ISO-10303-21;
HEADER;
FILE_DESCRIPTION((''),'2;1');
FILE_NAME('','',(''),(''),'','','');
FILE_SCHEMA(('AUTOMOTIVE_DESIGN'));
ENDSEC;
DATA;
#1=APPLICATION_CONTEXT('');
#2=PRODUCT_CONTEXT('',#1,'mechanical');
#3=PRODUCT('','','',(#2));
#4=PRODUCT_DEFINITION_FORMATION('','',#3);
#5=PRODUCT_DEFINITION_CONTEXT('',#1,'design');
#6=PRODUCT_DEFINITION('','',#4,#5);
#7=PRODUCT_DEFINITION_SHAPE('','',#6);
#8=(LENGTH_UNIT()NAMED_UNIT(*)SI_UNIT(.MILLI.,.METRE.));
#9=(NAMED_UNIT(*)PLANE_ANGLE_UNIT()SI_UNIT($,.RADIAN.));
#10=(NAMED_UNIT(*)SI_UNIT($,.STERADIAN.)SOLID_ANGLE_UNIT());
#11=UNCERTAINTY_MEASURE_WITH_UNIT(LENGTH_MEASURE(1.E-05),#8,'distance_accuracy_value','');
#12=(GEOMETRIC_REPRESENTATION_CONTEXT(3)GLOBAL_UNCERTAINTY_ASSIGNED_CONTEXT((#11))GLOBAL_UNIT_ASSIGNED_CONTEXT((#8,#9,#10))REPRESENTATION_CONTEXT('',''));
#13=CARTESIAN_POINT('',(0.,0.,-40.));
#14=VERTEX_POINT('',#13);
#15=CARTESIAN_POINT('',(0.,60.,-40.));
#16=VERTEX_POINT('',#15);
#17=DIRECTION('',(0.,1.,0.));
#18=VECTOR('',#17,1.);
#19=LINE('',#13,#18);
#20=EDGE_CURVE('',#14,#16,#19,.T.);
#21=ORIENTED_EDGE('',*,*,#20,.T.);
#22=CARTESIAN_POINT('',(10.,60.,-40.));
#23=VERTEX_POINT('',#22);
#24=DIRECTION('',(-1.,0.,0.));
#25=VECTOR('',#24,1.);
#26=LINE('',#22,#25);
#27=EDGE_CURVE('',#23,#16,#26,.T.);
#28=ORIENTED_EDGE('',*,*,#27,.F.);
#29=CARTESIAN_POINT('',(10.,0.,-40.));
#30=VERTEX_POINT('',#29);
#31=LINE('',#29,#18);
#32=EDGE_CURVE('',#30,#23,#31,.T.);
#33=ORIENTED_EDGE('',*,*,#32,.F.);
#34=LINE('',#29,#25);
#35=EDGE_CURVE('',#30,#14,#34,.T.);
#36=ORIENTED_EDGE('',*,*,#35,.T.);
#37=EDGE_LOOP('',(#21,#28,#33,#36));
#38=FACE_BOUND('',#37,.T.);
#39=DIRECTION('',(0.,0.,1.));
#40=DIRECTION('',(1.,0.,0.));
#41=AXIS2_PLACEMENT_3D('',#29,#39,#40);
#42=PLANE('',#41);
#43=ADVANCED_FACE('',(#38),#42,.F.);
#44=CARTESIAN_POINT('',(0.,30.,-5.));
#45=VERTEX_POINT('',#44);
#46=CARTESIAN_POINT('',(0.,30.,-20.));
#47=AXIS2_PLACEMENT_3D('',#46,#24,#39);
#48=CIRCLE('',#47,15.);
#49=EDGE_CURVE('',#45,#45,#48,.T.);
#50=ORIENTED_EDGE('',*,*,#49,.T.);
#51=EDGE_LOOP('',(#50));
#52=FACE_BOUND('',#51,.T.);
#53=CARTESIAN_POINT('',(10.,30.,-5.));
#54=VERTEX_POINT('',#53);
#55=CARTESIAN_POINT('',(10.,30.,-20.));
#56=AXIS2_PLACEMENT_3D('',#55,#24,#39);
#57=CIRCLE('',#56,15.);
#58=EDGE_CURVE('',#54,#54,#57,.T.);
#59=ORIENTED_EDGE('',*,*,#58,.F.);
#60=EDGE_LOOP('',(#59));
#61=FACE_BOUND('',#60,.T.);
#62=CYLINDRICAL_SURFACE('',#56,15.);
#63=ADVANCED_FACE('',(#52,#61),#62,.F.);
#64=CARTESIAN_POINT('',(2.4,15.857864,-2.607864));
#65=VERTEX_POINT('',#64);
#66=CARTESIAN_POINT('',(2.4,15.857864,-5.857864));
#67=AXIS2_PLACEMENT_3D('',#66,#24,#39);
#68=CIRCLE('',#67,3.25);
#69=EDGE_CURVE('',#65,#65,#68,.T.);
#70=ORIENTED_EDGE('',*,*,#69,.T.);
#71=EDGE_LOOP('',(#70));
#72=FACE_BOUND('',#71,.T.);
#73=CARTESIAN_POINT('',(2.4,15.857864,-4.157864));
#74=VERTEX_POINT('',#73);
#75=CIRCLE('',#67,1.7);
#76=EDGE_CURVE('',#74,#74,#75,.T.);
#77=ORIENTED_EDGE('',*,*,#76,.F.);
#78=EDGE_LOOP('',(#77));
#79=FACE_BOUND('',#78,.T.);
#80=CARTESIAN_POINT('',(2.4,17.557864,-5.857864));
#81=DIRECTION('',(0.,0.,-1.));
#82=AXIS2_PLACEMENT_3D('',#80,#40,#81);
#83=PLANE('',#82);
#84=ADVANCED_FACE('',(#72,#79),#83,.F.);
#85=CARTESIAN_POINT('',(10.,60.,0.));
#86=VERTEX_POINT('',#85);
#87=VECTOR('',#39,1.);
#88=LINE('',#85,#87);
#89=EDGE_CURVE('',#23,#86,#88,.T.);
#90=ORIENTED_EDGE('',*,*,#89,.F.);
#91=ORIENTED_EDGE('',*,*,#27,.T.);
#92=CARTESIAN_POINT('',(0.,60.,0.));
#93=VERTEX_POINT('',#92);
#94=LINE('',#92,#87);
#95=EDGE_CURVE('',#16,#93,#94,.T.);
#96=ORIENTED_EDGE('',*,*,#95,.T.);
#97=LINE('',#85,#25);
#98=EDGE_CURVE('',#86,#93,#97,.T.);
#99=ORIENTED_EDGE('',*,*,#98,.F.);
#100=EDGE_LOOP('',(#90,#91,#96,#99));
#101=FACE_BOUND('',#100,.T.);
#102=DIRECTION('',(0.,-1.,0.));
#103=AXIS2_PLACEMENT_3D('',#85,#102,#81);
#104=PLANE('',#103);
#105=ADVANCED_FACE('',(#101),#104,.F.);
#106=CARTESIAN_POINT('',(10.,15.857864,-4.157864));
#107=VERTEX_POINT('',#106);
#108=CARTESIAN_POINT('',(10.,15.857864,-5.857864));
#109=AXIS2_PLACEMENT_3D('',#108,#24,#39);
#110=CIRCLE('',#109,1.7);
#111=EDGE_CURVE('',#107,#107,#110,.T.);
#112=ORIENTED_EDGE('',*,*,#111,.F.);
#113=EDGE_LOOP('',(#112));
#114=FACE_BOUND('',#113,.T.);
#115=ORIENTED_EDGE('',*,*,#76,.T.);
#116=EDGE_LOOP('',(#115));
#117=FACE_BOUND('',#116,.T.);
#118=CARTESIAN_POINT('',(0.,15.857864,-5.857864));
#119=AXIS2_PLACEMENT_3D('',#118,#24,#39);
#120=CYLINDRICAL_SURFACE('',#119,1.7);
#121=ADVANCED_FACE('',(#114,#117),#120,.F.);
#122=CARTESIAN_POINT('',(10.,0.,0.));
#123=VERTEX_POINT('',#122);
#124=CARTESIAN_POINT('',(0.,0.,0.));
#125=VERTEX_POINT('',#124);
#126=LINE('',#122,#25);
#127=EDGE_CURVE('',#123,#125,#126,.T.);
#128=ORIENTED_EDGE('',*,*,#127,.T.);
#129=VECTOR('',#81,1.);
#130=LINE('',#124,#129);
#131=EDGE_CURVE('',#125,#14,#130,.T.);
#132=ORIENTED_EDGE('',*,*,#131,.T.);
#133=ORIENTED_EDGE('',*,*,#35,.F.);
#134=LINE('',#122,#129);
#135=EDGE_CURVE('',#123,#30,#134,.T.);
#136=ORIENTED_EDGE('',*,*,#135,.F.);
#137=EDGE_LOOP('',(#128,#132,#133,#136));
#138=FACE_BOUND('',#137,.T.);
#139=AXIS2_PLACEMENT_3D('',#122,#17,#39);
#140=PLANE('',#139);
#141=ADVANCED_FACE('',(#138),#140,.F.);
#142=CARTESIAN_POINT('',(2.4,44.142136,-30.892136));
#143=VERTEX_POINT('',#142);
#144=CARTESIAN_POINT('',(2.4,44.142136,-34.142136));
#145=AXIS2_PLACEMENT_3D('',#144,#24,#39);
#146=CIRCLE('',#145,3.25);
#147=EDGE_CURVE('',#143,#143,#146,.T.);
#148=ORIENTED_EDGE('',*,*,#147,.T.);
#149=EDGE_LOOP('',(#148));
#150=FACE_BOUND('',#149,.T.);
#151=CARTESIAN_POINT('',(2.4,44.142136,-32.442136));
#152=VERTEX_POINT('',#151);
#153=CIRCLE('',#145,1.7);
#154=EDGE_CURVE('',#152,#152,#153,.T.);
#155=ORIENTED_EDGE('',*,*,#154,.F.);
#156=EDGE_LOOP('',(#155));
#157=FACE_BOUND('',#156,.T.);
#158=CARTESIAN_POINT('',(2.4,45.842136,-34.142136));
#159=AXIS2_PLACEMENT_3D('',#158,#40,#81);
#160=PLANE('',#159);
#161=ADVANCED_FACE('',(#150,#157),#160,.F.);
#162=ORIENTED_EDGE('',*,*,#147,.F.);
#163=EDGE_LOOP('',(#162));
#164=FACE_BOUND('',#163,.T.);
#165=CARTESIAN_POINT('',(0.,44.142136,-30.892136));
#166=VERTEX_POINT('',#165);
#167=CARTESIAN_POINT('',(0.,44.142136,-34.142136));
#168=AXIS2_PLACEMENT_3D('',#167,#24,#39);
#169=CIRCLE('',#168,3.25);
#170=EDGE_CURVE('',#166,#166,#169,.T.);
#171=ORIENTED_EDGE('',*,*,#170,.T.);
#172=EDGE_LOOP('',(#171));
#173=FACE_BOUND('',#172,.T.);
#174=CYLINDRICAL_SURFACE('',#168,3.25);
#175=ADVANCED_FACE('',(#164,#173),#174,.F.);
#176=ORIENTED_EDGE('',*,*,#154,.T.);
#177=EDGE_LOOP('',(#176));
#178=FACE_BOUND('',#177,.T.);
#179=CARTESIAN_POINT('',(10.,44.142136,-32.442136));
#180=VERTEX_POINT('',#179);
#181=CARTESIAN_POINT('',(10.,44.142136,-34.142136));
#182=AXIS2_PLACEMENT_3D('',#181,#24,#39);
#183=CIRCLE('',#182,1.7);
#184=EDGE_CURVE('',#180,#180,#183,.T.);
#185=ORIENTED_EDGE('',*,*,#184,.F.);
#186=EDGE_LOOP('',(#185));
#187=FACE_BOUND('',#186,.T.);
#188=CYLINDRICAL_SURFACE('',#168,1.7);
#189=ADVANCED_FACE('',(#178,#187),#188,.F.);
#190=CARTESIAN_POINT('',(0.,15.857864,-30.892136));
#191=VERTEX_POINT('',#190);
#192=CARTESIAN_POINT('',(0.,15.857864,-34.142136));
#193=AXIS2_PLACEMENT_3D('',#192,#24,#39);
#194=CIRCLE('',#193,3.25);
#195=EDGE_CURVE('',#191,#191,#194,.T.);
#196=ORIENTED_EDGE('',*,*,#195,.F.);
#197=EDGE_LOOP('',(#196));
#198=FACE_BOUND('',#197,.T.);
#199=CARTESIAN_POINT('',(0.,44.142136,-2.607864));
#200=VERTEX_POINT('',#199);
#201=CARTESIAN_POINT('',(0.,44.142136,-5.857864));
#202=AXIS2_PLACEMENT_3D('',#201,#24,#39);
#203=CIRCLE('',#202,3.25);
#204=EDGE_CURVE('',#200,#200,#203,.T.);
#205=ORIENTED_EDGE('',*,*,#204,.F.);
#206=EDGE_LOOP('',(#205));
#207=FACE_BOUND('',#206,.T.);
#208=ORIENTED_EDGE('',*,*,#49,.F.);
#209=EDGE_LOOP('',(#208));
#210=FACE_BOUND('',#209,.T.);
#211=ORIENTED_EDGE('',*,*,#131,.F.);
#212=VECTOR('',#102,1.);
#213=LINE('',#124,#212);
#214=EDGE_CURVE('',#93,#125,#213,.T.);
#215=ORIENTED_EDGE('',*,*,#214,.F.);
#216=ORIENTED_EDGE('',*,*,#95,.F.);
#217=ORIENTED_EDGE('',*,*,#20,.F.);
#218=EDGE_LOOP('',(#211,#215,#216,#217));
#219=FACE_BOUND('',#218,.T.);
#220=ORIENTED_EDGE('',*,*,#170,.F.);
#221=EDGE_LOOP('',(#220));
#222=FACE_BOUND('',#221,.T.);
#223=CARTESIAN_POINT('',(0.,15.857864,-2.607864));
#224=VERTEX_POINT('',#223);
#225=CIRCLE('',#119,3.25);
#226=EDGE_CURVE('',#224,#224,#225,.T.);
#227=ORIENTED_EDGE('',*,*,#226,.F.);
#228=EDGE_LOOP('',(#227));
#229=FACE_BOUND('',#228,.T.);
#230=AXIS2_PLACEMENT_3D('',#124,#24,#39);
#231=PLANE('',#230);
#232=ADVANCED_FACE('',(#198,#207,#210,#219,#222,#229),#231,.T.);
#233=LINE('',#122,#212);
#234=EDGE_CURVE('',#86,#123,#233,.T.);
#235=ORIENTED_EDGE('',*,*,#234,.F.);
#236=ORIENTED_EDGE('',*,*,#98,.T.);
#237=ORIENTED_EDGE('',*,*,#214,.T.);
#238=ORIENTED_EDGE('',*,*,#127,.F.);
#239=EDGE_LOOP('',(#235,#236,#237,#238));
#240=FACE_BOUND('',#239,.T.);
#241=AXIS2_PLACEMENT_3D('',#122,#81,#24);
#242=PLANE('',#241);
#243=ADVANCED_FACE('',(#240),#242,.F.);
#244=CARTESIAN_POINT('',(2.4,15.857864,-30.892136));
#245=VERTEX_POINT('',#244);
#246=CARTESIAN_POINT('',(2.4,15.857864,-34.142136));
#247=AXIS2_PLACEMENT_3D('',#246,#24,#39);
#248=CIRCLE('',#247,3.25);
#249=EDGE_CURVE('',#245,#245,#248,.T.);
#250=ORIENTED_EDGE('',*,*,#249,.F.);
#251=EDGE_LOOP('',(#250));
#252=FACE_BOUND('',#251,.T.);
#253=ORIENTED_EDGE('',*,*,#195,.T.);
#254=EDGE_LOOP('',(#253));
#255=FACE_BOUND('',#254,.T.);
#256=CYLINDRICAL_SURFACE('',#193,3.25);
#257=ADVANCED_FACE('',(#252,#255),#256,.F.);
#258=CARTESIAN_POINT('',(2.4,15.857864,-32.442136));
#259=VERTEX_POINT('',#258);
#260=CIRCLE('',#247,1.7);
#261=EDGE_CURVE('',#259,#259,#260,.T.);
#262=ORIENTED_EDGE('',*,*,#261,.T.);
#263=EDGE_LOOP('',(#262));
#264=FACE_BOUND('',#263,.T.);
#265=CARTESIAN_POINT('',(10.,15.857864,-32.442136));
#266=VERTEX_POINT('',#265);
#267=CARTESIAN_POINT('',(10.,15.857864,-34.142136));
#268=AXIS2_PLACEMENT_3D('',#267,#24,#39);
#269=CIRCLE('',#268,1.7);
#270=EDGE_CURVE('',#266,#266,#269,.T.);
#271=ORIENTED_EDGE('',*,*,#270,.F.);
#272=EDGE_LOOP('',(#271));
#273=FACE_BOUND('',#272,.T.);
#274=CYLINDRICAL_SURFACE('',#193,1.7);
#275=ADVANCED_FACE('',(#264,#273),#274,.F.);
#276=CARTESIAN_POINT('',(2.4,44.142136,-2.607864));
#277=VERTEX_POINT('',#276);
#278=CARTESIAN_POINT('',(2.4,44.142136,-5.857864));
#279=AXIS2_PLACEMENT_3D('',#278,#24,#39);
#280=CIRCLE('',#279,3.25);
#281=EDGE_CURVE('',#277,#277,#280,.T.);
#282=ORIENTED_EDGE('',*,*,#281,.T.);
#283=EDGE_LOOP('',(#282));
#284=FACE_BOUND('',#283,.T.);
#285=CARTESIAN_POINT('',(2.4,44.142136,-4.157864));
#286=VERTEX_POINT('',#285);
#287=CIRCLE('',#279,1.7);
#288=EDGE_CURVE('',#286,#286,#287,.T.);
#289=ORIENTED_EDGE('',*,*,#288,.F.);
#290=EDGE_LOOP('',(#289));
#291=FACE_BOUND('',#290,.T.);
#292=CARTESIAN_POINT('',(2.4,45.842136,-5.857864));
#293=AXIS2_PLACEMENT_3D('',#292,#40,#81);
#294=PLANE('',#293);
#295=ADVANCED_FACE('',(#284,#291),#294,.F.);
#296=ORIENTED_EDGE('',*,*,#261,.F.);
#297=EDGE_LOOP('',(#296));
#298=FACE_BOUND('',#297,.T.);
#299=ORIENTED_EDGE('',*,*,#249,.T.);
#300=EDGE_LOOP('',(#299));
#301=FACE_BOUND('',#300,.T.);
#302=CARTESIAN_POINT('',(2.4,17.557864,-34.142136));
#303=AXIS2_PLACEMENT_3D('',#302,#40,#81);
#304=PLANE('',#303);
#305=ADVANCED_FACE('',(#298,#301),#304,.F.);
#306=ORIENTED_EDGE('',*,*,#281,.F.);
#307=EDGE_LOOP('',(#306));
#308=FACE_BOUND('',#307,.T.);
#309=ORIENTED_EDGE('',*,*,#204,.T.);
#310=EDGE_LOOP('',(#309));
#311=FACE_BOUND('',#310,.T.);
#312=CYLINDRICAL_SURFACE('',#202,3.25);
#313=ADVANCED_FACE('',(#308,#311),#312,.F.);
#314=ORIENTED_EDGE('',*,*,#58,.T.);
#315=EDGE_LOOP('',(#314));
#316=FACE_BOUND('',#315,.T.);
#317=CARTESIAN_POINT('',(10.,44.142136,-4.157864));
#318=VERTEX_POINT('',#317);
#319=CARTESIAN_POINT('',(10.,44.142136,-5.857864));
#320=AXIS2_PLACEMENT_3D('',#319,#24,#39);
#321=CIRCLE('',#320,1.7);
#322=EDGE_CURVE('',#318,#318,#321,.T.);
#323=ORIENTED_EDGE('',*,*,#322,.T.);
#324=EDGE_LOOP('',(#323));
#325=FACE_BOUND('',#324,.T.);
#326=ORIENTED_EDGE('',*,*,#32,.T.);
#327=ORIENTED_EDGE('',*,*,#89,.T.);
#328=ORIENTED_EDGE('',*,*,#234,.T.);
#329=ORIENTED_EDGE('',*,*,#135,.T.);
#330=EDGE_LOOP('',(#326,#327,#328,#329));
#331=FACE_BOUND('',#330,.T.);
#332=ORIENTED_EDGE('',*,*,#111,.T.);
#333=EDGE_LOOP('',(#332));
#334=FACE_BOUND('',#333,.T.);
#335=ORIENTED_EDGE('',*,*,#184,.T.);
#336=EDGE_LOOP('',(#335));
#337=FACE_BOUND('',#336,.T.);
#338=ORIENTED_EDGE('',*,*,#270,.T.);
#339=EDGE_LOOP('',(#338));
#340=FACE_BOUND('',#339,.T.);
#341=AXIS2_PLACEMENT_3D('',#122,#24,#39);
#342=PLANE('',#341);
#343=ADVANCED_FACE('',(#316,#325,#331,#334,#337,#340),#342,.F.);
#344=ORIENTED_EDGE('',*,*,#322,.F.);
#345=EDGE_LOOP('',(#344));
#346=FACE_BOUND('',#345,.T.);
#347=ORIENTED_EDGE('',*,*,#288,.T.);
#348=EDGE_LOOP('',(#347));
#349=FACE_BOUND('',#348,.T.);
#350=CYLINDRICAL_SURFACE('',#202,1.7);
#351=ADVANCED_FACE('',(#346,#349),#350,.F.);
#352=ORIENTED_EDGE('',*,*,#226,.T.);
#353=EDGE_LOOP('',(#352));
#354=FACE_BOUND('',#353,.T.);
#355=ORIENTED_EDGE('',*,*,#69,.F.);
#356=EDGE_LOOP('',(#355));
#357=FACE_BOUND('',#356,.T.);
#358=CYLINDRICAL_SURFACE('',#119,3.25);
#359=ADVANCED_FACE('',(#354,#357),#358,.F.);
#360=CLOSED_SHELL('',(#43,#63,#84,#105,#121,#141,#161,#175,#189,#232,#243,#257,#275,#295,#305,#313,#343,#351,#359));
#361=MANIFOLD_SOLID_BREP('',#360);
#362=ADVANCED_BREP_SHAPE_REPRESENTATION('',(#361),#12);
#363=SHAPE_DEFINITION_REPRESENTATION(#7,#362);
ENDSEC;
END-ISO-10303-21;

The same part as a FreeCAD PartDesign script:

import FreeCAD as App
import Part
import Sketcher
from FreeCAD import Vector


def add_polygon(sketch, points):
    """Adds a closed chain of lines whose ends are joined by coincident constraints."""
    first, n = sketch.GeometryCount, len(points)
    for a, b in zip(points, points[1:] + points[:1]):
        sketch.addGeometry(Part.LineSegment(App.Vector(*a, 0), App.Vector(*b, 0)), False)
    for i in range(n):
        sketch.addConstraint(Sketcher.Constraint("Coincident", first + i, 2, first + (i + 1) % n, 1))

doc = App.newDocument("Part")
params = doc.addObject("Spreadsheet::Sheet", "Params")
for row, (alias, value) in enumerate([
    ("sketch1_width", "60 mm"),
    ("sketch1_height", "40 mm"),
    ("pad1_length", "10 mm"),
    ("sketch2_diameter", "3.4 mm"),
    ("hole_diameter", "3.4 mm"),
    ("hole_cbore_diameter", "6.5 mm"),
    ("hole_cbore_depth", "2.4 mm"),
    ("sketch3_diameter", "30 mm"),
], start=1):
    params.set(f"A{row}", alias)
    params.set(f"B{row}", "=" + value)
    params.setAlias(f"B{row}", alias)

body = doc.addObject("PartDesign::Body", "Body")

# Sketch on YZ plane
sketch1 = doc.addObject("Sketcher::SketchObject", "Sketch")
body.addObject(sketch1)
sketch1.AttachmentSupport = (doc.YZ_Plane, [""])
sketch1.MapMode = "FlatFace"
add_polygon(sketch1, [(60, 0), (0, 0), (0, -40), (60, -40)])  # lines 0-3
sketch1.addConstraint([
    Sketcher.Constraint("Horizontal", 0),
    Sketcher.Constraint("Vertical", 1),
    Sketcher.Constraint("Horizontal", 2),
    Sketcher.Constraint("Vertical", 3),
    Sketcher.Constraint("Coincident", 0, 2, -1, 1),
    Sketcher.Constraint("DistanceX", 0, 2, 0, 1, 60.0),
    Sketcher.Constraint("DistanceY", 1, 2, 1, 1, 40.0),
])
sketch1.setExpression("Constraints[9]", "Params.sketch1_width")
sketch1.setExpression("Constraints[10]", "Params.sketch1_height")
pad1 = doc.addObject("PartDesign::Pad", "Pad")
body.addObject(pad1)
pad1.Profile = sketch1
pad1.setExpression("Length", "Params.pad1_length")

# Sketch on YZ plane
sketch2 = doc.addObject("Sketcher::SketchObject", "Sketch001")
body.addObject(sketch2)
sketch2.AttachmentSupport = (doc.YZ_Plane, [""])
sketch2.MapMode = "FlatFace"
sketch2.addGeometry([
    Part.Circle(Vector(15.857864, -5.857864, 0), Vector(0, 0, 1), 1.7),
    Part.Circle(Vector(44.142136, -5.857864, 0), Vector(0, 0, 1), 1.7),
    Part.Circle(Vector(44.142136, -34.142136, 0), Vector(0, 0, 1), 1.7),
    Part.Circle(Vector(15.857864, -34.142136, 0), Vector(0, 0, 1), 1.7),
], False)
sketch2.addConstraint([
    Sketcher.Constraint("Equal", 0, 1),
    Sketcher.Constraint("Equal", 1, 2),
    Sketcher.Constraint("Equal", 2, 3),
    Sketcher.Constraint("Horizontal", 0, 3, 1, 3),
    Sketcher.Constraint("Horizontal", 2, 3, 3, 3),
    Sketcher.Constraint("Vertical", 1, 3, 2, 3),
    Sketcher.Constraint("Vertical", 0, 3, 3, 3),
    Sketcher.Constraint("Diameter", 0, 3.4),
    Sketcher.Constraint("DistanceX", 0, 3, 1, 3, 28.284271),
    Sketcher.Constraint("DistanceY", 2, 3, 1, 3, 28.284271),
    Sketcher.Constraint("DistanceX", -1, 1, 0, 3, 15.857864),
    Sketcher.Constraint("DistanceY", 0, 3, -1, 1, 5.857864),
])
sketch2.setExpression("Constraints[7]", "Params.sketch2_diameter")
doc.recompute()
hole = doc.addObject("PartDesign::Hole", "Hole")
body.addObject(hole)
hole.Profile = sketch2
hole.ThreadType = "None"
hole.setExpression("Diameter", "Params.hole_diameter")
hole.DepthType = "ThroughAll"
hole.HoleCutType = "Counterbore"
hole.setExpression("HoleCutDiameter", "Params.hole_cbore_diameter")
hole.setExpression("HoleCutDepth", "Params.hole_cbore_depth")
hole.Reversed = True

# Sketch on YZ plane
sketch3 = doc.addObject("Sketcher::SketchObject", "Sketch002")
body.addObject(sketch3)
sketch3.AttachmentSupport = (doc.YZ_Plane, [""])
sketch3.MapMode = "FlatFace"
sketch3.addGeometry(Part.Circle(Vector(30, -20, 0), Vector(0, 0, 1), 15), False)
sketch3.addConstraint([
    Sketcher.Constraint("Diameter", 0, 30.0),
    Sketcher.Constraint("DistanceX", -1, 1, 0, 3, 30.0),
    Sketcher.Constraint("DistanceY", 0, 3, -1, 1, 20.0),
])
sketch3.setExpression("Constraints[0]", "Params.sketch3_diameter")
pocket1 = doc.addObject("PartDesign::Pocket", "Pocket")
body.addObject(pocket1)
pocket1.Profile = sketch3
pocket1.Type = "ThroughAll"
pocket1.Reversed = True

doc.recompute()
